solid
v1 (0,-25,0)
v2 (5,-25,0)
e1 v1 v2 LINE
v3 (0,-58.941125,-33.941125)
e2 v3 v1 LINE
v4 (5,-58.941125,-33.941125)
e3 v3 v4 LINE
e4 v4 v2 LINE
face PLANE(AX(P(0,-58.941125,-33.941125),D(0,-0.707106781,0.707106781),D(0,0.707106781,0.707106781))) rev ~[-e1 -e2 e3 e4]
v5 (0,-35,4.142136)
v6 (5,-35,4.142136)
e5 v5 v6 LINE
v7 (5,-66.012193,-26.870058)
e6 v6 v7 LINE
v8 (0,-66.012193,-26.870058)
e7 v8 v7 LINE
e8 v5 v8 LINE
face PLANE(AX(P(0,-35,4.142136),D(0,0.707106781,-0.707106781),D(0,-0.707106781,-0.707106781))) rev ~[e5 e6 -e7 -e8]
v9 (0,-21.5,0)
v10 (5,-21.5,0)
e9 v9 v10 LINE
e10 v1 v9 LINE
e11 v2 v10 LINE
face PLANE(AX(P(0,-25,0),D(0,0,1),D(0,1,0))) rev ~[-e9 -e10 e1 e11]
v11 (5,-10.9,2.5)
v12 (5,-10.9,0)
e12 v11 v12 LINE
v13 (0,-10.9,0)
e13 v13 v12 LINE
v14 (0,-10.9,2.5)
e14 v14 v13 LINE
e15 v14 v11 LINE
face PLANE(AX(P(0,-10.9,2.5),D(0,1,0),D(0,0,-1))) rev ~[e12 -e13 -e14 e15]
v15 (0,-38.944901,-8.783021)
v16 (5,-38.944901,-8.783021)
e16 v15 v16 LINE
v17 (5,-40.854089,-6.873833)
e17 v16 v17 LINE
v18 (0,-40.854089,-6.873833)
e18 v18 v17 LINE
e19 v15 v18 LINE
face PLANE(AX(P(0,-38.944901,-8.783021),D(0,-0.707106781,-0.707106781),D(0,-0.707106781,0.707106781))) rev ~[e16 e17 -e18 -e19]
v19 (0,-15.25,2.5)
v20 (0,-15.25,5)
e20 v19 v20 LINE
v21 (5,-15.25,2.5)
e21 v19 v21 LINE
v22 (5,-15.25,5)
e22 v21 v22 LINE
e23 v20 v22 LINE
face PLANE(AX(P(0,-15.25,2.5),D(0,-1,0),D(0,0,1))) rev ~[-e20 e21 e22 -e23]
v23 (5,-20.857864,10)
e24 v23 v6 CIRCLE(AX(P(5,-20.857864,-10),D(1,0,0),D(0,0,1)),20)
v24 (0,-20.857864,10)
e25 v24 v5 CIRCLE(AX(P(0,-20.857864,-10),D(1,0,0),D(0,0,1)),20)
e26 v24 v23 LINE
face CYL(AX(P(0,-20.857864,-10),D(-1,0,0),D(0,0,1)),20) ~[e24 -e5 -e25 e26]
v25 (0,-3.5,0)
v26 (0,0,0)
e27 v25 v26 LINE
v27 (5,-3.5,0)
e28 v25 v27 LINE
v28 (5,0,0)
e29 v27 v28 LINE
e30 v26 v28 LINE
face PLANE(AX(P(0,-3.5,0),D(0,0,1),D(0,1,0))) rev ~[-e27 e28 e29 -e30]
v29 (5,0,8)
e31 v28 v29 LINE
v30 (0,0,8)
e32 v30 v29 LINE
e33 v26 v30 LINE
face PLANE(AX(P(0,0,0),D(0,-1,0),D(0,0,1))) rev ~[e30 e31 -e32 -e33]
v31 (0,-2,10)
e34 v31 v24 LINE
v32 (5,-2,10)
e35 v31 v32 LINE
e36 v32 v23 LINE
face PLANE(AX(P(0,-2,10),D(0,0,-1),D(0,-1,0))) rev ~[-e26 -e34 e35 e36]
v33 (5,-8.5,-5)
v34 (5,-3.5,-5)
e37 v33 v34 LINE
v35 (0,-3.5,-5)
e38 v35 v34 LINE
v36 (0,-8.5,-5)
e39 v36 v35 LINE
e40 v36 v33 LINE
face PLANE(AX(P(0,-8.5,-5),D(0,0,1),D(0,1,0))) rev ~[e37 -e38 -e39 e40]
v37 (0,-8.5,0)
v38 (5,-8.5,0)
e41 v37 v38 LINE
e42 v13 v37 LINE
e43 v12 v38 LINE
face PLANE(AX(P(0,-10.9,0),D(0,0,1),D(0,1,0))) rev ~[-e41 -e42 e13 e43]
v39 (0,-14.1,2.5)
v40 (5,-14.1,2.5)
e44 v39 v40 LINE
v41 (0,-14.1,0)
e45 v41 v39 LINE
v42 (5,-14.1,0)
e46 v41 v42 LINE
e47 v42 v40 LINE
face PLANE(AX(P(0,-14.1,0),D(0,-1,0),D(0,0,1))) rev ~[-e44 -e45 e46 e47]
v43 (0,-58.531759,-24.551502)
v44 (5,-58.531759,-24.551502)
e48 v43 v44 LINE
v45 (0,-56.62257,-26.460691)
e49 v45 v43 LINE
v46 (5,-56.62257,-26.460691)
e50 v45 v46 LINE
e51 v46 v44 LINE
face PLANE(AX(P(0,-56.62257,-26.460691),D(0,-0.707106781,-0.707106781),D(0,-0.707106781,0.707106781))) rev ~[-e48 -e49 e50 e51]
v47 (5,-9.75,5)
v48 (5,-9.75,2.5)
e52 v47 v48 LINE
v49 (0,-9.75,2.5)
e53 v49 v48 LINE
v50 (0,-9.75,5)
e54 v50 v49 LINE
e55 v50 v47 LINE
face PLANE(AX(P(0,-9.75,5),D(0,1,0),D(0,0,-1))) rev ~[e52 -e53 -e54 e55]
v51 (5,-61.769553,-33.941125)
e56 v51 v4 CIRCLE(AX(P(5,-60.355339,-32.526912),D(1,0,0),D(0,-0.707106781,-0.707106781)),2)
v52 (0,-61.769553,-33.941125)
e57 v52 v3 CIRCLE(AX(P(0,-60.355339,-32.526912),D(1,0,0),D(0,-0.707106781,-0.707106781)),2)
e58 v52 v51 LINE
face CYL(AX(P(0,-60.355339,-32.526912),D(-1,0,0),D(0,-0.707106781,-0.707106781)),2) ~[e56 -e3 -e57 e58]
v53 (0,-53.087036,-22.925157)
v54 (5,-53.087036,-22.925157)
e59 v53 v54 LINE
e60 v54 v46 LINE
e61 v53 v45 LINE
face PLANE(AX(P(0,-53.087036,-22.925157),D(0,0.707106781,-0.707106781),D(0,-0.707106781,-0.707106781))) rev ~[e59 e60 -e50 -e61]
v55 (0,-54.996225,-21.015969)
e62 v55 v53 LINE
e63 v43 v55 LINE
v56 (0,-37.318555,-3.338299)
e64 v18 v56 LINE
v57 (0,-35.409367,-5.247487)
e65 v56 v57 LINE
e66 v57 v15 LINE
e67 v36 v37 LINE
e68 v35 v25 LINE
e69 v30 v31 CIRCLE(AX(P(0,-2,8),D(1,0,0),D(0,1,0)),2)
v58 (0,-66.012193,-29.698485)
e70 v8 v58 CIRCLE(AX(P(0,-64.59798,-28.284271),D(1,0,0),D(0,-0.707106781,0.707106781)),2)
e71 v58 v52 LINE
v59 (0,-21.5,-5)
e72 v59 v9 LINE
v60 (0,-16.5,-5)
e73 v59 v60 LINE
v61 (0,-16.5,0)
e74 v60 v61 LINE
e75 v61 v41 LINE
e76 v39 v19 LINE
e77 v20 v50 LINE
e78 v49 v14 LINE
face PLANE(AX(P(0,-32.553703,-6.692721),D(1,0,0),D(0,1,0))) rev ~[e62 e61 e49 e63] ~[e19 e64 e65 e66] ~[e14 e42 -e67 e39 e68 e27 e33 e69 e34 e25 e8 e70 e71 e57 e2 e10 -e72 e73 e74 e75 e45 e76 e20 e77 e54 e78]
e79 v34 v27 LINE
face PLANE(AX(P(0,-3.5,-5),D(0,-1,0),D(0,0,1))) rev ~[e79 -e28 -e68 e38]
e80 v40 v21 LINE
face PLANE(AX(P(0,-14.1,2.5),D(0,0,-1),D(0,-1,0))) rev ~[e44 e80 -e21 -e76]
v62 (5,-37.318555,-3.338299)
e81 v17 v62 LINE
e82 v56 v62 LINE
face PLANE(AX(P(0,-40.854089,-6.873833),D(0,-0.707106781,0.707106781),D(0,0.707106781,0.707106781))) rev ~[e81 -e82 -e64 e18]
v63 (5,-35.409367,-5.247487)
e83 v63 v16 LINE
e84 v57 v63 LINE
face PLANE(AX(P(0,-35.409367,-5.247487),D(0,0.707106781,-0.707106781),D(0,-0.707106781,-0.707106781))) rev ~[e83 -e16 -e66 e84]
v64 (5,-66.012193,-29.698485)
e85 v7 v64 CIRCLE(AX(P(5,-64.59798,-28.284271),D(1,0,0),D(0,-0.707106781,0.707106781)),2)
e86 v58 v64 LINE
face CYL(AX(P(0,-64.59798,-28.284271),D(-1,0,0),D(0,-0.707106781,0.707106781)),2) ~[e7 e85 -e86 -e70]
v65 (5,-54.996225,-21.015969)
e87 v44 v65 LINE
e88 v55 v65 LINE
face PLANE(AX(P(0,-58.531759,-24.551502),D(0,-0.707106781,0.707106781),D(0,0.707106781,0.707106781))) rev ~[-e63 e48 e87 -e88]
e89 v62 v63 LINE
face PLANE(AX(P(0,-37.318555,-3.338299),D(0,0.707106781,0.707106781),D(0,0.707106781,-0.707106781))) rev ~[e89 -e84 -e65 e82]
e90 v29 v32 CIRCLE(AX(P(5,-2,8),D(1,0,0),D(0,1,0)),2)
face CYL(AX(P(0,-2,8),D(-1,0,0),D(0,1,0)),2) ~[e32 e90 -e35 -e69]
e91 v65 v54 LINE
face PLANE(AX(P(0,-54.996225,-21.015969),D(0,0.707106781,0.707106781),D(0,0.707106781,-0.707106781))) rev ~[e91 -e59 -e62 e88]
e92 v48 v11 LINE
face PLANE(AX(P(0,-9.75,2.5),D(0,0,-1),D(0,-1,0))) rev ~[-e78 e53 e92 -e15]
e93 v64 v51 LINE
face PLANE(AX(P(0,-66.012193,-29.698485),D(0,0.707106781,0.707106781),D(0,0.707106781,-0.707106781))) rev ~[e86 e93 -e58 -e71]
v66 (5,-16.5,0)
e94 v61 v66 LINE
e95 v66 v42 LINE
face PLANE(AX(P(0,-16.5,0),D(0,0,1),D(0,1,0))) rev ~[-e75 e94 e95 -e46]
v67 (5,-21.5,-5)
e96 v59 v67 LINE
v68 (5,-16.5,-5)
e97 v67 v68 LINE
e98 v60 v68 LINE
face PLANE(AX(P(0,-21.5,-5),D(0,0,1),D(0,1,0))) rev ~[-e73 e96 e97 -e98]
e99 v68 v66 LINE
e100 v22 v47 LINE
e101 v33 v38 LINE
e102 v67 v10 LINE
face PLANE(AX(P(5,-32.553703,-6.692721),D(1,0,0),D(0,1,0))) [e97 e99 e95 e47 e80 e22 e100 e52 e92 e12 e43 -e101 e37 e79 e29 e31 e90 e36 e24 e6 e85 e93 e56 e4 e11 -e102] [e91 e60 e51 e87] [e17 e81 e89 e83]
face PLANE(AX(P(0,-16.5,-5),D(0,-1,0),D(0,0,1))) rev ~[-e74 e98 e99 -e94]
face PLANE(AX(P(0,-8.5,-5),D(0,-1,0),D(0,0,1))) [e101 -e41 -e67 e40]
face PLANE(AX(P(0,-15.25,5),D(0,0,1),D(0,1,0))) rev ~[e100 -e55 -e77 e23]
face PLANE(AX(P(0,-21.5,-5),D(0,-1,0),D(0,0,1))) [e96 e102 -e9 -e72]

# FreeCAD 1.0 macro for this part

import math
import FreeCAD as App
import Part
import Sketcher

V = App.Vector
Q = App.Units.Quantity


def add_polygon(sketch, points):
    """Adds a closed chain of lines whose ends are joined by coincident constraints."""
    first, n = sketch.GeometryCount, len(points)
    for a, b in zip(points, points[1:] + points[:1]):
        sketch.addGeometry(Part.LineSegment(App.Vector(*a, 0), App.Vector(*b, 0)), False)
    for i in range(n):
        sketch.addConstraint(Sketcher.Constraint("Coincident", first + i, 2, first + (i + 1) % n, 1))

doc = App.newDocument("Part")
body = doc.addObject("PartDesign::Body", "Body")

# Sketch on YZ plane
sketch1 = body.newObject("Sketcher::SketchObject", "Sketch")
sketch1.AttachmentSupport = (doc.getObject("YZ_Plane"), [""])
sketch1.MapMode = "FlatFace"
sketch1.addGeometry(Part.LineSegment(V(0, 0, 0), V(0, 8, 0)), False)  # 0
sketch1.addGeometry(Part.ArcOfCircle(Part.Circle(V(-2, 8, 0), V(0, 0, 1), 2), math.radians(0), math.radians(90)), False)  # 1
sketch1.addGeometry(Part.LineSegment(V(-2, 10, 0), V(-20.9, 10, 0)), False)  # 2
sketch1.addGeometry(Part.ArcOfCircle(Part.Circle(V(-20.9, -10, 0), V(0, 0, 1), 20), math.radians(90), math.radians(135)), False)  # 3
sketch1.addGeometry(Part.LineSegment(V(-35, 4.1, 0), V(-66, -26.9, 0)), False)  # 4
sketch1.addGeometry(Part.ArcOfCircle(Part.Circle(V(-64.6, -28.3, 0), V(0, 0, 1), 2), math.radians(135), math.radians(225)), False)  # 5
sketch1.addGeometry(Part.LineSegment(V(-66, -29.7, 0), V(-61.8, -33.9, 0)), False)  # 6
sketch1.addGeometry(Part.ArcOfCircle(Part.Circle(V(-60.4, -32.5, 0), V(0, 0, 1), 2), math.radians(-135), math.radians(-45)), False)  # 7
sketch1.addGeometry(Part.LineSegment(V(-58.9, -33.9, 0), V(-25, 0, 0)), False)  # 8
sketch1.addGeometry(Part.LineSegment(V(-25, 0, 0), V(-21.5, 0, 0)), False)  # 9
sketch1.addGeometry(Part.LineSegment(V(-21.5, 0, 0), V(-21.5, -5, 0)), False)  # 10
sketch1.addGeometry(Part.LineSegment(V(-21.5, -5, 0), V(-16.5, -5, 0)), False)  # 11
sketch1.addGeometry(Part.LineSegment(V(-16.5, -5, 0), V(-16.5, 0, 0)), False)  # 12
sketch1.addGeometry(Part.LineSegment(V(-16.5, 0, 0), V(-14.1, 0, 0)), False)  # 13
sketch1.addGeometry(Part.LineSegment(V(-14.1, 0, 0), V(-14.1, 2.5, 0)), False)  # 14
sketch1.addGeometry(Part.LineSegment(V(-14.1, 2.5, 0), V(-15.2, 2.5, 0)), False)  # 15
sketch1.addGeometry(Part.LineSegment(V(-15.2, 2.5, 0), V(-15.2, 5, 0)), False)  # 16
sketch1.addGeometry(Part.LineSegment(V(-15.2, 5, 0), V(-9.8, 5, 0)), False)  # 17
sketch1.addGeometry(Part.LineSegment(V(-9.8, 5, 0), V(-9.8, 2.5, 0)), False)  # 18
sketch1.addGeometry(Part.LineSegment(V(-9.8, 2.5, 0), V(-10.9, 2.5, 0)), False)  # 19
sketch1.addGeometry(Part.LineSegment(V(-10.9, 2.5, 0), V(-10.9, 0, 0)), False)  # 20
sketch1.addGeometry(Part.LineSegment(V(-10.9, 0, 0), V(-8.5, 0, 0)), False)  # 21
sketch1.addGeometry(Part.LineSegment(V(-8.5, 0, 0), V(-8.5, -5, 0)), False)  # 22
sketch1.addGeometry(Part.LineSegment(V(-8.5, -5, 0), V(-3.5, -5, 0)), False)  # 23
sketch1.addGeometry(Part.LineSegment(V(-3.5, -5, 0), V(-3.5, 0, 0)), False)  # 24
sketch1.addGeometry(Part.LineSegment(V(-3.5, 0, 0), V(0, 0, 0)), False)  # 25
add_polygon(sketch1, [(-53.1, -22.9), (-56.6, -26.5), (-58.5, -24.6), (-55, -21)])  # lines 26-29
add_polygon(sketch1, [(-38.9, -8.8), (-40.9, -6.9), (-37.3, -3.3), (-35.4, -5.2)])  # lines 30-33
sketch1.addConstraint(Sketcher.Constraint("Tangent", 0, 2, 1, 1))
sketch1.addConstraint(Sketcher.Constraint("Tangent", 1, 2, 2, 1))
sketch1.addConstraint(Sketcher.Constraint("Tangent", 2, 2, 3, 1))
sketch1.addConstraint(Sketcher.Constraint("Tangent", 3, 2, 4, 1))
sketch1.addConstraint(Sketcher.Constraint("Tangent", 4, 2, 5, 1))
sketch1.addConstraint(Sketcher.Constraint("Tangent", 5, 2, 6, 1))
sketch1.addConstraint(Sketcher.Constraint("Tangent", 6, 2, 7, 1))
sketch1.addConstraint(Sketcher.Constraint("Tangent", 7, 2, 8, 1))
sketch1.addConstraint(Sketcher.Constraint("Coincident", 8, 2, 9, 1))
sketch1.addConstraint(Sketcher.Constraint("Coincident", 9, 2, 10, 1))
sketch1.addConstraint(Sketcher.Constraint("Coincident", 10, 2, 11, 1))
sketch1.addConstraint(Sketcher.Constraint("Coincident", 11, 2, 12, 1))
sketch1.addConstraint(Sketcher.Constraint("Coincident", 12, 2, 13, 1))
sketch1.addConstraint(Sketcher.Constraint("Coincident", 13, 2, 14, 1))
sketch1.addConstraint(Sketcher.Constraint("Coincident", 14, 2, 15, 1))
sketch1.addConstraint(Sketcher.Constraint("Coincident", 15, 2, 16, 1))
sketch1.addConstraint(Sketcher.Constraint("Coincident", 16, 2, 17, 1))
sketch1.addConstraint(Sketcher.Constraint("Coincident", 17, 2, 18, 1))
sketch1.addConstraint(Sketcher.Constraint("Coincident", 18, 2, 19, 1))
sketch1.addConstraint(Sketcher.Constraint("Coincident", 19, 2, 20, 1))
sketch1.addConstraint(Sketcher.Constraint("Coincident", 20, 2, 21, 1))
sketch1.addConstraint(Sketcher.Constraint("Coincident", 21, 2, 22, 1))
sketch1.addConstraint(Sketcher.Constraint("Coincident", 22, 2, 23, 1))
sketch1.addConstraint(Sketcher.Constraint("Coincident", 23, 2, 24, 1))
sketch1.addConstraint(Sketcher.Constraint("Coincident", 24, 2, 25, 1))
sketch1.addConstraint(Sketcher.Constraint("Coincident", 25, 2, 0, 1))
sketch1.addConstraint(Sketcher.Constraint("Vertical", 0))
sketch1.addConstraint(Sketcher.Constraint("Horizontal", 2))
sketch1.addConstraint(Sketcher.Constraint("Horizontal", 9))
sketch1.addConstraint(Sketcher.Constraint("Vertical", 10))
sketch1.addConstraint(Sketcher.Constraint("Horizontal", 11))
sketch1.addConstraint(Sketcher.Constraint("Vertical", 12))
sketch1.addConstraint(Sketcher.Constraint("Horizontal", 13))
sketch1.addConstraint(Sketcher.Constraint("Vertical", 14))
sketch1.addConstraint(Sketcher.Constraint("Horizontal", 15))
sketch1.addConstraint(Sketcher.Constraint("Vertical", 16))
sketch1.addConstraint(Sketcher.Constraint("Horizontal", 17))
sketch1.addConstraint(Sketcher.Constraint("Vertical", 18))
sketch1.addConstraint(Sketcher.Constraint("Horizontal", 19))
sketch1.addConstraint(Sketcher.Constraint("Vertical", 20))
sketch1.addConstraint(Sketcher.Constraint("Horizontal", 21))
sketch1.addConstraint(Sketcher.Constraint("Vertical", 22))
sketch1.addConstraint(Sketcher.Constraint("Horizontal", 23))
sketch1.addConstraint(Sketcher.Constraint("Vertical", 24))
sketch1.addConstraint(Sketcher.Constraint("Horizontal", 25))
sketch1.addConstraint(Sketcher.Constraint("Coincident", 25, 2, -1, 1))
sketch1.addConstraint(Sketcher.Constraint("Equal", 1, 5))
sketch1.addConstraint(Sketcher.Constraint("Equal", 5, 7))
sketch1.addConstraint(Sketcher.Constraint("PointOnObject", 8, 2, -1))
sketch1.addConstraint(Sketcher.Constraint("PointOnObject", 12, 2, -1))
sketch1.addConstraint(Sketcher.Constraint("PointOnObject", 20, 2, -1))
sketch1.addConstraint(Sketcher.Constraint("Perpendicular", 4, 6))
sketch1.addConstraint(Sketcher.Constraint("Perpendicular", 6, 8))
sketch1.addConstraint(Sketcher.Constraint("Parallel", 8, 26))
sketch1.addConstraint(Sketcher.Constraint("Perpendicular", 26, 27))
sketch1.addConstraint(Sketcher.Constraint("Perpendicular", 27, 28))
sketch1.addConstraint(Sketcher.Constraint("Perpendicular", 28, 29))
sketch1.addConstraint(Sketcher.Constraint("Parallel", 29, 30))
sketch1.addConstraint(Sketcher.Constraint("Perpendicular", 30, 31))
sketch1.addConstraint(Sketcher.Constraint("Perpendicular", 31, 32))
sketch1.addConstraint(Sketcher.Constraint("Perpendicular", 32, 33))
sketch1.addConstraint(Sketcher.Constraint("Horizontal", 6, 2, 7, 2))
sketch1.addConstraint(Sketcher.Constraint("Horizontal", 15, 2, 18, 2))
sketch1.addConstraint(Sketcher.Constraint("Horizontal", 11, 2, 22, 2))
sketch1.addConstraint(Sketcher.Constraint("Equal", 15, 19))
sketch1.addConstraint(Sketcher.Constraint("Equal", 13, 21))
sketch1.addConstraint(Sketcher.Constraint("Equal", 11, 23))
sketch1.addConstraint(Sketcher.Constraint("Equal", 9, 25))
sketch1.addConstraint(Sketcher.Constraint("Equal", 23, 10))
sketch1.addConstraint(Sketcher.Constraint("Equal", 14, 16))
sketch1.addConstraint(Sketcher.Constraint("Equal", 29, 30))
sketch1.addConstraint(Sketcher.Constraint("Equal", 28, 31))
sketch1.addConstraint(Sketcher.Constraint("Radius", 1, Q("2 mm")))
sketch1.addConstraint(Sketcher.Constraint("Radius", 3, Q("20 mm")))
sketch1.addConstraint(Sketcher.Constraint("DistanceX", 11, 1, 11, 2, Q("5 mm")))
sketch1.addConstraint(Sketcher.Constraint("DistanceY", 0, 1, 0, 2, Q("8 mm")))
sketch1.addConstraint(Sketcher.Constraint("Distance", 6, Q("6 mm")))
sketch1.addConstraint(Sketcher.Constraint("Distance", 8, Q("48 mm")))
sketch1.addConstraint(Sketcher.Constraint("Distance", 26, Q("5 mm")))
sketch1.addConstraint(Sketcher.Constraint("DistanceX", 9, 1, 9, 2, Q("3.5 mm")))
sketch1.addConstraint(Sketcher.Constraint("DistanceX", 13, 1, 13, 2, Q("2.4 mm")))
sketch1.addConstraint(Sketcher.Constraint("DistanceX", 17, 1, 17, 2, Q("5.5 mm")))
sketch1.addConstraint(Sketcher.Constraint("DistanceY", 14, 1, 14, 2, Q("2.5 mm")))
sketch1.addConstraint(Sketcher.Constraint("DistanceX", 3, 2, -1, 1, Q("35 mm")))
sketch1.addConstraint(Sketcher.Constraint("Distance", 27, Q("2.7 mm")))
sketch1.addConstraint(Sketcher.Constraint("DistanceY", 31, 2, -1, 1, Q("3.338299 mm")))
sketch1.addConstraint(Sketcher.Constraint("DistanceX", 33, 2, -1, 1, Q("38.944901 mm")))
sketch1.addConstraint(Sketcher.Constraint("DistanceX", 26, 2, -1, 1, Q("56.62257 mm")))
sketch1.addConstraint(Sketcher.Constraint("DistanceY", 26, 2, -1, 1, Q("26.460691 mm")))
pad1 = body.newObject("PartDesign::Pad", "Pad")
pad1.Profile = sketch1
pad1.Length = 5

doc.recompute()
